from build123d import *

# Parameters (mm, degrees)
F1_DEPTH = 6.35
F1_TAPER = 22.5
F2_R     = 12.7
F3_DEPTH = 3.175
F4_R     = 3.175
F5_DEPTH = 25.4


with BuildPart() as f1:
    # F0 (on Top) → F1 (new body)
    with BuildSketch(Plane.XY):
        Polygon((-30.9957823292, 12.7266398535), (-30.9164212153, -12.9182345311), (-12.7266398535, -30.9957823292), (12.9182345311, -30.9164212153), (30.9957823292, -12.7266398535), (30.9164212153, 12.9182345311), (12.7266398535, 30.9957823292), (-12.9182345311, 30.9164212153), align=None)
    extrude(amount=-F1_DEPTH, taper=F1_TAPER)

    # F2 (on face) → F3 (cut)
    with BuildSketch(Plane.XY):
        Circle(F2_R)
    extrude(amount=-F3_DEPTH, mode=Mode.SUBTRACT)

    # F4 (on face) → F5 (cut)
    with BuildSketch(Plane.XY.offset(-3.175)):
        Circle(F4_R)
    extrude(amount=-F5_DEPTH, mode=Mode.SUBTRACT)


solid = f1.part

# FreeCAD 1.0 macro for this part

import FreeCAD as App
import Part
import Sketcher
Q = App.Units.Quantity


def add_polygon(sketch, points):
    """Adds a closed chain of lines whose ends are joined by coincident constraints."""
    first, n = sketch.GeometryCount, len(points)
    for a, b in zip(points, points[1:] + points[:1]):
        sketch.addGeometry(Part.LineSegment(App.Vector(*a, 0), App.Vector(*b, 0)), False)
    for i in range(n):
        sketch.addConstraint(Sketcher.Constraint("Coincident", first + i, 2, first + (i + 1) % n, 1))

doc = App.newDocument("Part")
body = doc.addObject("PartDesign::Body", "Body")

# Sketch on XY plane
sketch1 = body.newObject("Sketcher::SketchObject", "Sketch")
sketch1.AttachmentSupport = (doc.getObject("XY_Plane"), [""])
sketch1.MapMode = "FlatFace"
add_polygon(sketch1, [(-30.995782, 12.72664), (-30.916421, -12.918235), (-12.72664, -30.995782), (12.918235, -30.916421), (30.995782, -12.72664), (30.916421, 12.918235), (12.72664, 30.995782), (-12.918235, 30.916421)])  # lines 0-7
sketch1.addConstraint([
    Sketcher.Constraint("Symmetric", 0, 2, 4, 2, -1, 1),
    Sketcher.Constraint("Symmetric", 1, 2, 5, 2, -1, 1),
    Sketcher.Constraint("Symmetric", 2, 2, 6, 2, -1, 1),
    Sketcher.Constraint("Symmetric", 3, 2, 7, 2, -1, 1),
    Sketcher.Constraint("Perpendicular", 0, 2),
    Sketcher.Constraint("Perpendicular", 1, 3),
    Sketcher.Constraint("Equal", 0, 1),
    Sketcher.Constraint("Equal", 1, 2),
    Sketcher.Constraint("Equal", 2, 3),
    Sketcher.Constraint("DistanceX", 0, 2, -1, 1, 30.916421),
    Sketcher.Constraint("DistanceX", 1, 2, -1, 1, 12.72664),
    Sketcher.Constraint("DistanceY", 1, 2, 2, 2, 0.079361),
])
pad1 = body.newObject("PartDesign::Pad", "Pad")
pad1.Profile = sketch1
pad1.Length = Q("0.25 in")
pad1.Reversed = True
pad1.TaperAngle = -22.5

# Sketch on XY plane
sketch2 = body.newObject("Sketcher::SketchObject", "Sketch001")
sketch2.AttachmentSupport = (doc.getObject("XY_Plane"), [""])
sketch2.MapMode = "FlatFace"
sketch2.addGeometry(Part.Circle(App.Vector(0, 0, 0), App.Vector(0, 0, 1), 12.7), False)
sketch2.addConstraint([
    Sketcher.Constraint("Coincident", 0, 3, -1, 1),
    Sketcher.Constraint("Diameter", 0, Q("1 in")),
])
pocket1 = body.newObject("PartDesign::Pocket", "Pocket")
pocket1.Profile = sketch2
pocket1.Length = Q("0.125 in")

# Sketch on XY plane
sketch3 = body.newObject("Sketcher::SketchObject", "Sketch002")
sketch3.AttachmentSupport = (doc.getObject("XY_Plane"), [""])
sketch3.MapMode = "FlatFace"
sketch3.AttachmentOffset = App.Placement(App.Vector(0, 0, -0.125 * 25.4), App.Rotation())
sketch3.addGeometry(Part.Circle(App.Vector(0, 0, 0), App.Vector(0, 0, 1), 3.175), False)
sketch3.addConstraint([
    Sketcher.Constraint("Coincident", 0, 3, -1, 1),
    Sketcher.Constraint("Diameter", 0, Q("0.25 in")),
])
pocket2 = body.newObject("PartDesign::Pocket", "Pocket001")
pocket2.Profile = sketch3
pocket2.Length = Q("1 in")

doc.recompute()
